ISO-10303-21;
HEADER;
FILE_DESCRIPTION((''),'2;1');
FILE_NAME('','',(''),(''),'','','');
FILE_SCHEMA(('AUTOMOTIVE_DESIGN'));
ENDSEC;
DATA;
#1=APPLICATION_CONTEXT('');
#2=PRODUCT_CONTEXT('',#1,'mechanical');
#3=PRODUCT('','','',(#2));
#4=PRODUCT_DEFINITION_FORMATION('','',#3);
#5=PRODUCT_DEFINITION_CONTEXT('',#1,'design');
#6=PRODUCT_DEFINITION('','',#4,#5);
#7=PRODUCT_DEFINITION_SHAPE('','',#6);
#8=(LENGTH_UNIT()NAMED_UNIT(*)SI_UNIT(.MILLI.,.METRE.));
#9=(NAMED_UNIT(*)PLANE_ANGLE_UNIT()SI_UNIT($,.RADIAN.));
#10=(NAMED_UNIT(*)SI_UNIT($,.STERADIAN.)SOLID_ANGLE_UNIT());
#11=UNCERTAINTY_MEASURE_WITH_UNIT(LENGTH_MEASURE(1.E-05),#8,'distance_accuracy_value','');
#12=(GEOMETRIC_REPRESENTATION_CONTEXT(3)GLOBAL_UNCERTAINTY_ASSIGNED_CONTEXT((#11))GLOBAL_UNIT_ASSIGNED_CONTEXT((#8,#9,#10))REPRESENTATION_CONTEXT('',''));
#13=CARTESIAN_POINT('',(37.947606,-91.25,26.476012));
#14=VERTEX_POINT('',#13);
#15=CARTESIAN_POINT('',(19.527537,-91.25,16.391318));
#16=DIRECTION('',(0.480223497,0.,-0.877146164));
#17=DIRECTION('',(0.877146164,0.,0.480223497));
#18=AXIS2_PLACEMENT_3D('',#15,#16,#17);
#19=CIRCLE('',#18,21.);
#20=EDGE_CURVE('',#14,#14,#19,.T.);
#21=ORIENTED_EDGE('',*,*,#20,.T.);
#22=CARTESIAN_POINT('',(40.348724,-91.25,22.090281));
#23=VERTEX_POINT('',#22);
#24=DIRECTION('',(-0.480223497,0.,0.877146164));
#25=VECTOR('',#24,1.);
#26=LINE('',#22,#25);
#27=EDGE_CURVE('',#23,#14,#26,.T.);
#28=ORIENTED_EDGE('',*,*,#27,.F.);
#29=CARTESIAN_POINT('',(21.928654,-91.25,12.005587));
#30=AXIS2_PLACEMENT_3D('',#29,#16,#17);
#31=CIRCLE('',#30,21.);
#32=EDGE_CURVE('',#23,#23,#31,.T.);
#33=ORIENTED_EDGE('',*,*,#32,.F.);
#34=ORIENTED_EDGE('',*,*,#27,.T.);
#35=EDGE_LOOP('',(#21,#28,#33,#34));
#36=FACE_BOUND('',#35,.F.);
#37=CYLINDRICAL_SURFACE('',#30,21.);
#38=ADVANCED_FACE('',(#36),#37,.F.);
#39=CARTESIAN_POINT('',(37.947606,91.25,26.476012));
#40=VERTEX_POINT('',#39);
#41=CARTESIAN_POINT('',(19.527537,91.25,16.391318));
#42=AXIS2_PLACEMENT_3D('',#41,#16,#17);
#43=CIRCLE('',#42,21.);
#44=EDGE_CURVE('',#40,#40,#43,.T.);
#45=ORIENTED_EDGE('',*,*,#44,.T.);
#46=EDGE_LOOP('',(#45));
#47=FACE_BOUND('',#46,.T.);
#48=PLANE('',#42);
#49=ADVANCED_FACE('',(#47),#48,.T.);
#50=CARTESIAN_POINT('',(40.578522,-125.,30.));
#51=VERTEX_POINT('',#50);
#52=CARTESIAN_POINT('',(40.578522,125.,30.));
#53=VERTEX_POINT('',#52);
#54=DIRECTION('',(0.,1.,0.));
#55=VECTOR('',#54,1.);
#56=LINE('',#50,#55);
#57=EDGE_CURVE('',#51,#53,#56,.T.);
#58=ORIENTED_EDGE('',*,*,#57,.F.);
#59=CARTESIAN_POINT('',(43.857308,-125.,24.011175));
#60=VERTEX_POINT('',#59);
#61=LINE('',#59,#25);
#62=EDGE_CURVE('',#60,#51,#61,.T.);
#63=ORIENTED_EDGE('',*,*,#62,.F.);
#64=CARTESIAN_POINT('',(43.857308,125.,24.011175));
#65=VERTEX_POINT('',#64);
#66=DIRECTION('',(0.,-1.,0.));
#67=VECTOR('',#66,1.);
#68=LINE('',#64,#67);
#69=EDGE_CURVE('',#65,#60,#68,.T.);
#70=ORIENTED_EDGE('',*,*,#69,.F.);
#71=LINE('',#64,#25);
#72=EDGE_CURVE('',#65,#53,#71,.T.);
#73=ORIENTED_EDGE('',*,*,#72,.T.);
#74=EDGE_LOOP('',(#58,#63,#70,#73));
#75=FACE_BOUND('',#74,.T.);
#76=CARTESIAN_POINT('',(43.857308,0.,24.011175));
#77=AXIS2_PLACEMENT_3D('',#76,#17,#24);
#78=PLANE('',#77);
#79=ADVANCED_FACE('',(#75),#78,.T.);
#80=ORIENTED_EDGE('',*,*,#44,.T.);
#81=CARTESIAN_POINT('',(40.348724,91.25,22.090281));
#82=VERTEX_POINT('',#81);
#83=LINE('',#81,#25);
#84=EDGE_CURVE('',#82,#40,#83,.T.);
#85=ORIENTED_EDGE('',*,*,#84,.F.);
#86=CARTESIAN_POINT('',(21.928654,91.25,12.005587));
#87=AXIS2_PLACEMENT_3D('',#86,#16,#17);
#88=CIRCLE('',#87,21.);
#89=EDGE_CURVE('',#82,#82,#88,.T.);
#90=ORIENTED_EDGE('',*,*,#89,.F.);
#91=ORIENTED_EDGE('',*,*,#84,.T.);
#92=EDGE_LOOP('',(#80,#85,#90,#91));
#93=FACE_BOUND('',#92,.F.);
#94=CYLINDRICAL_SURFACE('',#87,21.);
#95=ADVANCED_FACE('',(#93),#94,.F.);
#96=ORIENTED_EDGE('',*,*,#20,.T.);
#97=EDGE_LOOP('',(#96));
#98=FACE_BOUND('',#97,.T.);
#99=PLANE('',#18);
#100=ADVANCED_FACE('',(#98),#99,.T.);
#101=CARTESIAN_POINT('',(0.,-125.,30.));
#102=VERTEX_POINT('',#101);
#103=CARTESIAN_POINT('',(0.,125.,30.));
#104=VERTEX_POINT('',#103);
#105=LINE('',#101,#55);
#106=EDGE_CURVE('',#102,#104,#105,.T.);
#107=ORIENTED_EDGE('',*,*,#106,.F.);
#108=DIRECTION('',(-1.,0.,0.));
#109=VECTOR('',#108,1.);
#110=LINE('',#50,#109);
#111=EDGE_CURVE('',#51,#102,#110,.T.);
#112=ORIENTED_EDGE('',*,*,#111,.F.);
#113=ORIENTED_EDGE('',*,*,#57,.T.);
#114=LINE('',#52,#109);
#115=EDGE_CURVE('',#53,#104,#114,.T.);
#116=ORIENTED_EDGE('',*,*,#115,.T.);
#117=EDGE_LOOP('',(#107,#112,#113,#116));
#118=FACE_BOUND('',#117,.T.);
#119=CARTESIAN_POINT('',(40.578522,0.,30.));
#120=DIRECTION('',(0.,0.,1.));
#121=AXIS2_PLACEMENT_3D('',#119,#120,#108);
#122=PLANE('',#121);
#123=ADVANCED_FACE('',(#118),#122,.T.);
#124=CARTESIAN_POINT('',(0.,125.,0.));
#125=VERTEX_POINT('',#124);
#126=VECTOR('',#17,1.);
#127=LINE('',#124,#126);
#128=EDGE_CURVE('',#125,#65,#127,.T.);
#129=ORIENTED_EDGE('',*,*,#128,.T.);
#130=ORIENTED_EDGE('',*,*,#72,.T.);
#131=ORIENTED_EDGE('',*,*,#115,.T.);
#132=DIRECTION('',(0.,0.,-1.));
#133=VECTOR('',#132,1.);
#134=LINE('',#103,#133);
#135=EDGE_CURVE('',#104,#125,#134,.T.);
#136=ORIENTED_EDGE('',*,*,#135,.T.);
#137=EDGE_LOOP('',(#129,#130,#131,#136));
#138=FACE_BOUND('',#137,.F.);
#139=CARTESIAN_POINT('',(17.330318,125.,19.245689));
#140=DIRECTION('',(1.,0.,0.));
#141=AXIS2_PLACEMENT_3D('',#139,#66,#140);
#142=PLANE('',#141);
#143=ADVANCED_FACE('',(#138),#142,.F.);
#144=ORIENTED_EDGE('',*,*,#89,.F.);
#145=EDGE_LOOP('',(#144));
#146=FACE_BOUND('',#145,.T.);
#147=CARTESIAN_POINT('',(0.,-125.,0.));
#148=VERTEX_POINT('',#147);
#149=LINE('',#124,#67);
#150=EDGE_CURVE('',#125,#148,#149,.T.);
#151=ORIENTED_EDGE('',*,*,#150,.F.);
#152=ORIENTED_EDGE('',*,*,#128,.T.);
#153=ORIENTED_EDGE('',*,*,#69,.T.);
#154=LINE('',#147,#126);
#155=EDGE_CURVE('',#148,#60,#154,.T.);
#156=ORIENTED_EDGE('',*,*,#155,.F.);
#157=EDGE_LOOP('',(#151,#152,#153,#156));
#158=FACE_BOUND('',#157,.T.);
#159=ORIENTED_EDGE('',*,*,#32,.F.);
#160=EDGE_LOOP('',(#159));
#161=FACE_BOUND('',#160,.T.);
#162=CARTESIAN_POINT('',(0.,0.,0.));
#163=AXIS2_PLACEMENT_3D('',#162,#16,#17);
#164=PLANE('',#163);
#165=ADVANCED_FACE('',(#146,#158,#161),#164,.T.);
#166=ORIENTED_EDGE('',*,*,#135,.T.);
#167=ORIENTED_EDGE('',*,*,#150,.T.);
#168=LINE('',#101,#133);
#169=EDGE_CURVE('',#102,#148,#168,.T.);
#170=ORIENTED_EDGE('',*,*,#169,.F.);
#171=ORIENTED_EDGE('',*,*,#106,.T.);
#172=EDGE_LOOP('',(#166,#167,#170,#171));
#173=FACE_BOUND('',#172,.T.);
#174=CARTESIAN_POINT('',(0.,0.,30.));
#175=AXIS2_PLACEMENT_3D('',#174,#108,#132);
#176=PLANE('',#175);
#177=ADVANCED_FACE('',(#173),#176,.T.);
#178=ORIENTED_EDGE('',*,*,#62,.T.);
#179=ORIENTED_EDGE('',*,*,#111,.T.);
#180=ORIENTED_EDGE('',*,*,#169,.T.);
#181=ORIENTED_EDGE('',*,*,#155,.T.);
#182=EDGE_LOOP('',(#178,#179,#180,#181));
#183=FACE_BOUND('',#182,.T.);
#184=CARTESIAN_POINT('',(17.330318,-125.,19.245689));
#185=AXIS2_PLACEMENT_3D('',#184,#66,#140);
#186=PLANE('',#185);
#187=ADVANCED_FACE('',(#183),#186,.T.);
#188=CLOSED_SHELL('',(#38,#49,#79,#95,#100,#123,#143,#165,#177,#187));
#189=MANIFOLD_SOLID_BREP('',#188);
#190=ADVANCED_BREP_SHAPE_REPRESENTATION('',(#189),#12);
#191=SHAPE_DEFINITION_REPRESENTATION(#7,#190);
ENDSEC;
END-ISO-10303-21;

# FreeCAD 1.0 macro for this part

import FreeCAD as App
import Part
import Sketcher
from FreeCAD import Vector
Q = App.Units.Quantity


def add_polygon(sketch, points):
    """Adds a closed chain of lines whose ends are joined by coincident constraints."""
    first, n = sketch.GeometryCount, len(points)
    for a, b in zip(points, points[1:] + points[:1]):
        sketch.addGeometry(Part.LineSegment(App.Vector(*a, 0), App.Vector(*b, 0)), False)
    for i in range(n):
        sketch.addConstraint(Sketcher.Constraint("Coincident", first + i, 2, first + (i + 1) % n, 1))

doc = App.newDocument("Part")
body = doc.addObject("PartDesign::Body", "Body")

sketch1 = body.newObject("Sketcher::SketchObject", "Sketch")
sketch1.AttachmentSupport = (doc.getObject("XZ_Plane"), [""])
sketch1.MapMode = "FlatFace"
add_polygon(sketch1, [(0, 30), (0, 0), (44, 24), (41, 30)])
sketch1.addConstraint([
    Sketcher.Constraint("Vertical", 0),
    Sketcher.Constraint("Horizontal", 3),
    Sketcher.Constraint("Coincident", 0, 2, -1, 1),
    Sketcher.Constraint("Perpendicular", 1, 2),
    Sketcher.Constraint("DistanceY", 0, 2, 0, 1, 30.0),
    Sketcher.Constraint("Distance", 1, 50.0),
    Sketcher.Constraint("Angle", 1, Q("28.7 deg")),
])
pad1 = body.newObject("PartDesign::Pad", "Pad")
pad1.Profile = sketch1
pad1.Length = 250
pad1.Midplane = True

sketch2 = body.newObject("Sketcher::SketchObject", "Sketch001")
sketch2.Placement = App.Placement(Vector(0, 0, 0), App.Rotation(Vector(0.877146164, 0, 0.480223497), Vector(0, -1, 0), Vector(0.480223497, 0, -0.877146164), "ZXY"))
sketch2.addGeometry([
    Part.Circle(Vector(25, 91, 0), Vector(0, 0, 1), 21),
    Part.Circle(Vector(25, -91, 0), Vector(0, 0, 1), 21),
], False)
sketch2.addConstraint([
    Sketcher.Constraint("Equal", 0, 1),
    Sketcher.Constraint("Symmetric", 0, 3, 1, 3, -1),
    Sketcher.Constraint("Diameter", 0, 42.0),
    Sketcher.Constraint("DistanceX", -1, 1, 0, 3, 25.0),
    Sketcher.Constraint("DistanceY", 1, 3, 0, 3, 182.5),
])
pocket1 = body.newObject("PartDesign::Pocket", "Pocket")
pocket1.Profile = sketch2
pocket1.Length = 5

doc.recompute()
